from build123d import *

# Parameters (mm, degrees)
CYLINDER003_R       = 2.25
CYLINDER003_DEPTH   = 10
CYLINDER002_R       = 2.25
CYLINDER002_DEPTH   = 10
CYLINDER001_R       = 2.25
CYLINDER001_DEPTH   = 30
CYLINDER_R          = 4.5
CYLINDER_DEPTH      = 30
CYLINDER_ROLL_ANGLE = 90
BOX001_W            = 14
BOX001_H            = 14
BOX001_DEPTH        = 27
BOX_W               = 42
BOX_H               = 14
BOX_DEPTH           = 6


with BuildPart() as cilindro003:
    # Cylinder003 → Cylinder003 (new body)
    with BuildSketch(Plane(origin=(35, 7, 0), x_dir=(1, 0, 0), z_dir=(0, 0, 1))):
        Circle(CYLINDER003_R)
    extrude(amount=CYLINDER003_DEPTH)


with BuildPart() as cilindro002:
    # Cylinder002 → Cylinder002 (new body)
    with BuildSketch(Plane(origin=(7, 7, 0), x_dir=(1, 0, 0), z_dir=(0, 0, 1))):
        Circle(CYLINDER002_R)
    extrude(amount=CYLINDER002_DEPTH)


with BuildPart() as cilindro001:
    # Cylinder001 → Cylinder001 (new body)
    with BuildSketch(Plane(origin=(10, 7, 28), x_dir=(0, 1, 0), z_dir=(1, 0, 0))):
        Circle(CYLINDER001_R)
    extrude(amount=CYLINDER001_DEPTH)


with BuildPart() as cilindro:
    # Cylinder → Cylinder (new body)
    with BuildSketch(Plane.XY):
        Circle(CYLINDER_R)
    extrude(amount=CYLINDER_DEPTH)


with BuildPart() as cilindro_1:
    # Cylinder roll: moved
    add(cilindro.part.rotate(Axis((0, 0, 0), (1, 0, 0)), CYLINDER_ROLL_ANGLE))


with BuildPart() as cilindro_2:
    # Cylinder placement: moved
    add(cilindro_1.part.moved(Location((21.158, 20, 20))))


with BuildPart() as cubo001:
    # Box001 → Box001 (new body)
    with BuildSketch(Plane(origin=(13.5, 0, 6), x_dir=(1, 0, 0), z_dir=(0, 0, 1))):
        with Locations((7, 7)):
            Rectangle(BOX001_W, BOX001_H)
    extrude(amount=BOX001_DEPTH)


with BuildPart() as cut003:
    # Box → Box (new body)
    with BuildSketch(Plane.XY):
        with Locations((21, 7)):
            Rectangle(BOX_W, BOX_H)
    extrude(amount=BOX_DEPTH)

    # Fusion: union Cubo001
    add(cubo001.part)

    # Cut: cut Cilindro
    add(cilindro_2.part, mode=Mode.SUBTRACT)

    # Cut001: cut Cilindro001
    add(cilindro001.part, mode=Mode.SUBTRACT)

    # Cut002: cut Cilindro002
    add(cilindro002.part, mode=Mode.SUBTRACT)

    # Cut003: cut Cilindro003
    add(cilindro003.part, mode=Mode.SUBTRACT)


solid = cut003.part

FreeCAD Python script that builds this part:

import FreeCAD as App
import Part
import Sketcher

V = App.Vector


def add_polygon(sketch, points):
    """Adds a closed chain of lines whose ends are joined by coincident constraints."""
    first, n = sketch.GeometryCount, len(points)
    for a, b in zip(points, points[1:] + points[:1]):
        sketch.addGeometry(Part.LineSegment(App.Vector(*a, 0), App.Vector(*b, 0)), False)
    for i in range(n):
        sketch.addConstraint(Sketcher.Constraint("Coincident", first + i, 2, first + (i + 1) % n, 1))

doc = App.newDocument("Part")
body = doc.addObject("PartDesign::Body", "Body")

# Sketch on XY plane
sketch1 = body.newObject("Sketcher::SketchObject", "Sketch")
sketch1.AttachmentSupport = (doc.getObject("XY_Plane"), [""])
sketch1.MapMode = "FlatFace"
sketch1.addGeometry(Part.Circle(V(35, 7, 0), V(0, 0, 1), 2.2), False)
sketch1.addConstraint(Sketcher.Constraint("Diameter", 0, 4.5))
sketch1.addConstraint(Sketcher.Constraint("DistanceX", -1, 1, 0, 3, 35.0))
sketch1.addConstraint(Sketcher.Constraint("DistanceY", -1, 1, 0, 3, 7.0))
pad1 = body.newObject("PartDesign::Pad", "Pad")
pad1.Profile = sketch1
pad1.Length = 10
body2 = doc.addObject("PartDesign::Body", "Body001")

# Sketch on XY plane
sketch2 = body2.newObject("Sketcher::SketchObject", "Sketch001")
sketch2.AttachmentSupport = (doc.getObject("XY_Plane001"), [""])
sketch2.MapMode = "FlatFace"
sketch2.addGeometry(Part.Circle(V(7, 7, 0), V(0, 0, 1), 2.2), False)
sketch2.addConstraint(Sketcher.Constraint("Diameter", 0, 4.5))
sketch2.addConstraint(Sketcher.Constraint("DistanceX", -1, 1, 0, 3, 7.0))
sketch2.addConstraint(Sketcher.Constraint("DistanceY", -1, 1, 0, 3, 7.0))
pad2 = body2.newObject("PartDesign::Pad", "Pad001")
pad2.Profile = sketch2
pad2.Length = 10
body3 = doc.addObject("PartDesign::Body", "Body002")

# Sketch on YZ plane
sketch3 = body3.newObject("Sketcher::SketchObject", "Sketch002")
sketch3.AttachmentSupport = (doc.getObject("YZ_Plane002"), [""])
sketch3.MapMode = "FlatFace"
sketch3.AttachmentOffset = App.Placement(V(0, 0, 10), App.Rotation())
sketch3.addGeometry(Part.Circle(V(7, 28, 0), V(0, 0, 1), 2.2), False)
sketch3.addConstraint(Sketcher.Constraint("Diameter", 0, 4.5))
sketch3.addConstraint(Sketcher.Constraint("DistanceX", -1, 1, 0, 3, 7.0))
sketch3.addConstraint(Sketcher.Constraint("DistanceY", -1, 1, 0, 3, 28.0))
pad3 = body3.newObject("PartDesign::Pad", "Pad002")
pad3.Profile = sketch3
pad3.Length = 30
body4 = doc.addObject("PartDesign::Body", "Body003")

# Sketch on XY plane
sketch4 = body4.newObject("Sketcher::SketchObject", "Sketch003")
sketch4.AttachmentSupport = (doc.getObject("XY_Plane003"), [""])
sketch4.MapMode = "FlatFace"
sketch4.addGeometry(Part.Circle(V(0, 0, 0), V(0, 0, 1), 4.5), False)
sketch4.addConstraint(Sketcher.Constraint("Coincident", 0, 3, -1, 1))
sketch4.addConstraint(Sketcher.Constraint("Diameter", 0, 9.0))
pad4 = body4.newObject("PartDesign::Pad", "Pad003")
pad4.Profile = sketch4
pad4.Length = 30
body5 = doc.addObject("PartDesign::Body", "Body004")
doc.recompute()

body4.Placement = App.Placement(V(0, 0, 0), App.Rotation(V(1, 0, 0), 90))
boolean = body5.newObject("PartDesign::Boolean", "Boolean")
boolean.Type = "Fuse"
boolean.addObjects([body4])
body6 = doc.addObject("PartDesign::Body", "Body005")
doc.recompute()

body5.Placement = App.Placement(V(21.158, 20, 20), App.Rotation(V(0, 0, 1), 0))
boolean2 = body6.newObject("PartDesign::Boolean", "Boolean001")
boolean2.Type = "Fuse"
boolean2.addObjects([body5])
body7 = doc.addObject("PartDesign::Body", "Body006")

# Sketch on XY plane
sketch5 = body7.newObject("Sketcher::SketchObject", "Sketch004")
sketch5.AttachmentSupport = (doc.getObject("XY_Plane006"), [""])
sketch5.MapMode = "FlatFace"
sketch5.AttachmentOffset = App.Placement(V(0, 0, 6), App.Rotation())
add_polygon(sketch5, [(14, 14), (14, 0), (28, 0), (28, 14)])  # lines 0-3
sketch5.addConstraint(Sketcher.Constraint("Vertical", 0))
sketch5.addConstraint(Sketcher.Constraint("Horizontal", 1))
sketch5.addConstraint(Sketcher.Constraint("Vertical", 2))
sketch5.addConstraint(Sketcher.Constraint("Horizontal", 3))
sketch5.addConstraint(Sketcher.Constraint("PointOnObject", 0, 2, -1))
sketch5.addConstraint(Sketcher.Constraint("Equal", 3, 0))
sketch5.addConstraint(Sketcher.Constraint("DistanceX", 1, 1, 1, 2, 14.0))
sketch5.addConstraint(Sketcher.Constraint("DistanceX", -1, 1, 0, 2, 13.5))
pad5 = body7.newObject("PartDesign::Pad", "Pad004")
pad5.Profile = sketch5
pad5.Length = 27
body8 = doc.addObject("PartDesign::Body", "Body007")

# Sketch on XY plane
sketch6 = body8.newObject("Sketcher::SketchObject", "Sketch005")
sketch6.AttachmentSupport = (doc.getObject("XY_Plane007"), [""])
sketch6.MapMode = "FlatFace"
add_polygon(sketch6, [(0, 14), (0, 0), (42, 0), (42, 14)])  # lines 0-3
sketch6.addConstraint(Sketcher.Constraint("Vertical", 0))
sketch6.addConstraint(Sketcher.Constraint("Horizontal", 1))
sketch6.addConstraint(Sketcher.Constraint("Vertical", 2))
sketch6.addConstraint(Sketcher.Constraint("Horizontal", 3))
sketch6.addConstraint(Sketcher.Constraint("Coincident", 0, 2, -1, 1))
sketch6.addConstraint(Sketcher.Constraint("DistanceX", 1, 1, 1, 2, 42.0))
sketch6.addConstraint(Sketcher.Constraint("DistanceY", 0, 2, 0, 1, 14.0))
pad6 = body8.newObject("PartDesign::Pad", "Pad005")
pad6.Profile = sketch6
pad6.Length = 6
doc.recompute()

boolean3 = body8.newObject("PartDesign::Boolean", "Boolean002")
boolean3.Type = "Fuse"
boolean3.addObjects([body7])
doc.recompute()

boolean4 = body8.newObject("PartDesign::Boolean", "Boolean003")
boolean4.Type = "Cut"
boolean4.addObjects([body6])
doc.recompute()

boolean5 = body8.newObject("PartDesign::Boolean", "Boolean004")
boolean5.Type = "Cut"
boolean5.addObjects([body3])
doc.recompute()

boolean6 = body8.newObject("PartDesign::Boolean", "Boolean005")
boolean6.Type = "Cut"
boolean6.addObjects([body2])
doc.recompute()

boolean7 = body8.newObject("PartDesign::Boolean", "Boolean006")
boolean7.Type = "Cut"
boolean7.addObjects([body])

doc.recompute()
